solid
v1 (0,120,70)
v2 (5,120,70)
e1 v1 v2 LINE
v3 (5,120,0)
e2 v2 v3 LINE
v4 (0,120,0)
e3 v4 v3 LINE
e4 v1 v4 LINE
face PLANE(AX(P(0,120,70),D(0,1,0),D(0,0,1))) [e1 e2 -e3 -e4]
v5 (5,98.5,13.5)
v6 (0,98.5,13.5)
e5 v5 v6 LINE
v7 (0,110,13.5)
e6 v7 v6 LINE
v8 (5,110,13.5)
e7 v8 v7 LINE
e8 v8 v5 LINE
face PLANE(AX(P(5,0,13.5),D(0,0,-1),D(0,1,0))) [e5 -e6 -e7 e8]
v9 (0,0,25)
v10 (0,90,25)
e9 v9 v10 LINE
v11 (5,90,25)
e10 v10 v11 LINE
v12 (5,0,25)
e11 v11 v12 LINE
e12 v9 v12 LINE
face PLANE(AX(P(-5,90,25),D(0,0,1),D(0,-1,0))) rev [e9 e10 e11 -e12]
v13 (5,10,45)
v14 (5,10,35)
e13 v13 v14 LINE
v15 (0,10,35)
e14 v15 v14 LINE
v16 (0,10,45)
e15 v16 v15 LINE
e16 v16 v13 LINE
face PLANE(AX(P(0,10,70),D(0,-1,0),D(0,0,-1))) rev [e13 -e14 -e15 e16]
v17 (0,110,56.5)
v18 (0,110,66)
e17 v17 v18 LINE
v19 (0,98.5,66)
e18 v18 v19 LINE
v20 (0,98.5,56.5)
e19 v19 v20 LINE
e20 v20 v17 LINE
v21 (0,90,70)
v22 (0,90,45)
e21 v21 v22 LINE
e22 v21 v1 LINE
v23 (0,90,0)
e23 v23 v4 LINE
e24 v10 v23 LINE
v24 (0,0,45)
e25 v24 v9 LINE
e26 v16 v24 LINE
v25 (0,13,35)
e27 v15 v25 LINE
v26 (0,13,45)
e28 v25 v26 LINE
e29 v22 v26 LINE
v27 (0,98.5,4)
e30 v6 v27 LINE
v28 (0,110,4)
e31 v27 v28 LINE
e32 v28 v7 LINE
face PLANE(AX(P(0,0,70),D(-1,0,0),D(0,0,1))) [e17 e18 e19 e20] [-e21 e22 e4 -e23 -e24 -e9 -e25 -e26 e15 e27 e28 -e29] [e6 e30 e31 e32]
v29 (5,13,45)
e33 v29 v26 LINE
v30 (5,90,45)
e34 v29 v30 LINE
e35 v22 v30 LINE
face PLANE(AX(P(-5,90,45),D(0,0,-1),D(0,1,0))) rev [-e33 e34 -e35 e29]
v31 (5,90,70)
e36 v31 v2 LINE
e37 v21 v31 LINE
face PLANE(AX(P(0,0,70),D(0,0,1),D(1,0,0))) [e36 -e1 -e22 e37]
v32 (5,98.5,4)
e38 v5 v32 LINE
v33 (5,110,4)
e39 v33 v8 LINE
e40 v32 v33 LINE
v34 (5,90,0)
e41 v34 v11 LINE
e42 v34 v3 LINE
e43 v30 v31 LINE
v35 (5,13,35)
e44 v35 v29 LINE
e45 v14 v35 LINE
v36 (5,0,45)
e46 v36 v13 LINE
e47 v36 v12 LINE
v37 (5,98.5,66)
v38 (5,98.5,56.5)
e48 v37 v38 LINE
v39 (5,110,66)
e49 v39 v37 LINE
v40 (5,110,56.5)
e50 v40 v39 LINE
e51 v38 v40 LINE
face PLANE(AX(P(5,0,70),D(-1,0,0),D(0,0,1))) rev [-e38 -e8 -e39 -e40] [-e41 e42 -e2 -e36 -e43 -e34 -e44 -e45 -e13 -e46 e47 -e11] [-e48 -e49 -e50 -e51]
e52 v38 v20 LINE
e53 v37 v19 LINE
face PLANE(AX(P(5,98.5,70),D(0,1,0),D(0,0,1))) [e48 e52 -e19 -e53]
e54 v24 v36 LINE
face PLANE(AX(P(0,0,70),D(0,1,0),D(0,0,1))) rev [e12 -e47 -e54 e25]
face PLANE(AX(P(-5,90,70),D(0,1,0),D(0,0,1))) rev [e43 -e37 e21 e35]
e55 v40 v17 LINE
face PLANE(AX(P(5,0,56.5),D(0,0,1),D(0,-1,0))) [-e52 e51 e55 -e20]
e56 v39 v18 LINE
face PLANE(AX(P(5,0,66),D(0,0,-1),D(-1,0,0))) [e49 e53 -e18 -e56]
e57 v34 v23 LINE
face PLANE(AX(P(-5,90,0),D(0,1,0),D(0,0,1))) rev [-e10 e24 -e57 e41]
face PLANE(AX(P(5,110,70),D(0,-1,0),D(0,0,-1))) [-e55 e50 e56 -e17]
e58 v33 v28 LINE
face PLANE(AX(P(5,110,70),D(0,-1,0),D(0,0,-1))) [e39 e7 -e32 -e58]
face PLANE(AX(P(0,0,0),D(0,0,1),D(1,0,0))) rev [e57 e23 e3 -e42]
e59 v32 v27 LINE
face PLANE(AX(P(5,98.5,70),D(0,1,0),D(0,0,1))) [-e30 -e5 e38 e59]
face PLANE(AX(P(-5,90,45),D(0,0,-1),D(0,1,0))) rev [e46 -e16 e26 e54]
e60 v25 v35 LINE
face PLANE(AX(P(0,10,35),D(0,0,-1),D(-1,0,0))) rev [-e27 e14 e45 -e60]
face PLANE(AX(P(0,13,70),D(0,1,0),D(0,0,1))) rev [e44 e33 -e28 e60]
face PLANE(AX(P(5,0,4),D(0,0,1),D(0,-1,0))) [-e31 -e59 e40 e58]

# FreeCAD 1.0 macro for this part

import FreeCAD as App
import Part
import Sketcher

doc = App.newDocument("Part")
params = doc.addObject("Spreadsheet::Sheet", "Params")
for row, (alias, value) in enumerate([
    ("sketch1_width", "5 mm"),
    ("sketch1_height", "120 mm"),
    ("pad1_length", "70 mm"),
    ("sketch2_width", "3 mm"),
    ("sketch2_height", "35 mm"),
    ("sketch3_width", "11.5 mm"),
    ("sketch3_height", "9.5 mm"),
    ("sketch4_width", "90 mm"),
    ("sketch4_height", "25 mm"),
    ("pocket3_length", "10 mm"),
], start=1):
    params.set(f"A{row}", alias)
    params.set(f"B{row}", "=" + value)
    params.setAlias(f"B{row}", alias)

body = doc.addObject("PartDesign::Body", "Body")

sketch1 = body.newObject("Sketcher::SketchObject", "Sketch")
sketch1.AttachmentSupport = (doc.getObject("XY_Plane"), [""])
sketch1.MapMode = "FlatFace"
sketch1.addGeometry(Part.LineSegment(App.Vector(0, 120, 0), App.Vector(0, 0, 0)), False)
sketch1.addGeometry(Part.LineSegment(App.Vector(0, 0, 0), App.Vector(5, 0, 0)), False)
sketch1.addGeometry(Part.LineSegment(App.Vector(5, 0, 0), App.Vector(5, 120, 0)), False)
sketch1.addGeometry(Part.LineSegment(App.Vector(5, 120, 0), App.Vector(0, 120, 0)), False)
sketch1.addConstraint(Sketcher.Constraint("Coincident", 0, 2, 1, 1))
sketch1.addConstraint(Sketcher.Constraint("Coincident", 1, 2, 2, 1))
sketch1.addConstraint(Sketcher.Constraint("Coincident", 2, 2, 3, 1))
sketch1.addConstraint(Sketcher.Constraint("Coincident", 3, 2, 0, 1))
sketch1.addConstraint(Sketcher.Constraint("Vertical", 0))
sketch1.addConstraint(Sketcher.Constraint("Horizontal", 1))
sketch1.addConstraint(Sketcher.Constraint("Vertical", 2))
sketch1.addConstraint(Sketcher.Constraint("Horizontal", 3))
sketch1.addConstraint(Sketcher.Constraint("Coincident", 0, 2, -1, 1))
sketch1.addConstraint(Sketcher.Constraint("DistanceX", 1, 1, 1, 2, 5.0))
sketch1.addConstraint(Sketcher.Constraint("DistanceY", 0, 2, 0, 1, 120.0))
sketch1.setExpression("Constraints[9]", "Params.sketch1_width")
sketch1.setExpression("Constraints[10]", "Params.sketch1_height")
pad1 = body.newObject("PartDesign::Pad", "Pad")
pad1.Profile = sketch1
pad1.setExpression("Length", "Params.pad1_length")

sketch2 = body.newObject("Sketcher::SketchObject", "Sketch001")
sketch2.AttachmentSupport = (doc.getObject("YZ_Plane"), [""])
sketch2.MapMode = "FlatFace"
sketch2.AttachmentOffset = App.Placement(App.Vector(0, 0, 5), App.Rotation())
sketch2.addGeometry(Part.LineSegment(App.Vector(13, 70, 0), App.Vector(10, 70, 0)), False)
sketch2.addGeometry(Part.LineSegment(App.Vector(10, 70, 0), App.Vector(10, 35, 0)), False)
sketch2.addGeometry(Part.LineSegment(App.Vector(10, 35, 0), App.Vector(13, 35, 0)), False)
sketch2.addGeometry(Part.LineSegment(App.Vector(13, 35, 0), App.Vector(13, 70, 0)), False)
sketch2.addConstraint(Sketcher.Constraint("Coincident", 0, 2, 1, 1))
sketch2.addConstraint(Sketcher.Constraint("Coincident", 1, 2, 2, 1))
sketch2.addConstraint(Sketcher.Constraint("Coincident", 2, 2, 3, 1))
sketch2.addConstraint(Sketcher.Constraint("Coincident", 3, 2, 0, 1))
sketch2.addConstraint(Sketcher.Constraint("Horizontal", 0))
sketch2.addConstraint(Sketcher.Constraint("Vertical", 1))
sketch2.addConstraint(Sketcher.Constraint("Horizontal", 2))
sketch2.addConstraint(Sketcher.Constraint("Vertical", 3))
sketch2.addConstraint(Sketcher.Constraint("DistanceX", 0, 2, 0, 1, 3.0))
sketch2.addConstraint(Sketcher.Constraint("DistanceY", 1, 2, 1, 1, 35.0))
sketch2.addConstraint(Sketcher.Constraint("DistanceX", -1, 1, 0, 2, 10.0))
sketch2.addConstraint(Sketcher.Constraint("DistanceY", -1, 1, 0, 2, 70.0))
sketch2.setExpression("Constraints[8]", "Params.sketch2_width")
sketch2.setExpression("Constraints[9]", "Params.sketch2_height")
pocket1 = body.newObject("PartDesign::Pocket", "Pocket")
pocket1.Profile = sketch2
pocket1.Type = "ThroughAll"

sketch3 = body.newObject("Sketcher::SketchObject", "Sketch002")
sketch3.AttachmentSupport = (doc.getObject("YZ_Plane"), [""])
sketch3.MapMode = "FlatFace"
sketch3.addGeometry(Part.LineSegment(App.Vector(110, 13.5, 0), App.Vector(98.5, 13.5, 0)), False)
sketch3.addGeometry(Part.LineSegment(App.Vector(98.5, 13.5, 0), App.Vector(98.5, 4, 0)), False)
sketch3.addGeometry(Part.LineSegment(App.Vector(98.5, 4, 0), App.Vector(110, 4, 0)), False)
sketch3.addGeometry(Part.LineSegment(App.Vector(110, 4, 0), App.Vector(110, 13.5, 0)), False)
sketch3.addGeometry(Part.LineSegment(App.Vector(110, 66, 0), App.Vector(98.5, 66, 0)), False)
sketch3.addGeometry(Part.LineSegment(App.Vector(98.5, 66, 0), App.Vector(98.5, 56.5, 0)), False)
sketch3.addGeometry(Part.LineSegment(App.Vector(98.5, 56.5, 0), App.Vector(110, 56.5, 0)), False)
sketch3.addGeometry(Part.LineSegment(App.Vector(110, 56.5, 0), App.Vector(110, 66, 0)), False)
sketch3.addConstraint(Sketcher.Constraint("Coincident", 0, 2, 1, 1))
sketch3.addConstraint(Sketcher.Constraint("Coincident", 1, 2, 2, 1))
sketch3.addConstraint(Sketcher.Constraint("Coincident", 2, 2, 3, 1))
sketch3.addConstraint(Sketcher.Constraint("Coincident", 3, 2, 0, 1))
sketch3.addConstraint(Sketcher.Constraint("Coincident", 4, 2, 5, 1))
sketch3.addConstraint(Sketcher.Constraint("Coincident", 5, 2, 6, 1))
sketch3.addConstraint(Sketcher.Constraint("Coincident", 6, 2, 7, 1))
sketch3.addConstraint(Sketcher.Constraint("Coincident", 7, 2, 4, 1))
sketch3.addConstraint(Sketcher.Constraint("Horizontal", 0))
sketch3.addConstraint(Sketcher.Constraint("Vertical", 1))
sketch3.addConstraint(Sketcher.Constraint("Horizontal", 2))
sketch3.addConstraint(Sketcher.Constraint("Vertical", 3))
sketch3.addConstraint(Sketcher.Constraint("Horizontal", 4))
sketch3.addConstraint(Sketcher.Constraint("Vertical", 5))
sketch3.addConstraint(Sketcher.Constraint("Horizontal", 6))
sketch3.addConstraint(Sketcher.Constraint("Vertical", 7))
sketch3.addConstraint(Sketcher.Constraint("Vertical", 1, 2, 4, 2))
sketch3.addConstraint(Sketcher.Constraint("Vertical", 3, 2, 6, 2))
sketch3.addConstraint(Sketcher.Constraint("Equal", 3, 5))
sketch3.addConstraint(Sketcher.Constraint("DistanceX", 0, 2, 0, 1, 11.5))
sketch3.addConstraint(Sketcher.Constraint("DistanceY", 1, 2, 1, 1, 9.5))
sketch3.addConstraint(Sketcher.Constraint("DistanceY", -1, 1, 1, 2, 4.0))
sketch3.addConstraint(Sketcher.Constraint("DistanceX", -1, 1, 2, 2, 110.0))
sketch3.addConstraint(Sketcher.Constraint("DistanceY", -1, 1, 4, 2, 66.0))
sketch3.setExpression("Constraints[19]", "Params.sketch3_width")
sketch3.setExpression("Constraints[20]", "Params.sketch3_height")
pocket2 = body.newObject("PartDesign::Pocket", "Pocket001")
pocket2.Profile = sketch3
pocket2.Type = "ThroughAll"
pocket2.Reversed = True

sketch4 = body.newObject("Sketcher::SketchObject", "Sketch003")
sketch4.AttachmentSupport = (doc.getObject("YZ_Plane"), [""])
sketch4.MapMode = "FlatFace"
sketch4.AttachmentOffset = App.Placement(App.Vector(0, 0, 5), App.Rotation())
sketch4.addGeometry(Part.LineSegment(App.Vector(90, 70, 0), App.Vector(0, 70, 0)), False)
sketch4.addGeometry(Part.LineSegment(App.Vector(0, 70, 0), App.Vector(0, 45, 0)), False)
sketch4.addGeometry(Part.LineSegment(App.Vector(0, 45, 0), App.Vector(90, 45, 0)), False)
sketch4.addGeometry(Part.LineSegment(App.Vector(90, 45, 0), App.Vector(90, 70, 0)), False)
sketch4.addGeometry(Part.LineSegment(App.Vector(90, 25, 0), App.Vector(0, 25, 0)), False)
sketch4.addGeometry(Part.LineSegment(App.Vector(0, 25, 0), App.Vector(0, 0, 0)), False)
sketch4.addGeometry(Part.LineSegment(App.Vector(0, 0, 0), App.Vector(90, 0, 0)), False)
sketch4.addGeometry(Part.LineSegment(App.Vector(90, 0, 0), App.Vector(90, 25, 0)), False)
sketch4.addConstraint(Sketcher.Constraint("Coincident", 0, 2, 1, 1))
sketch4.addConstraint(Sketcher.Constraint("Coincident", 1, 2, 2, 1))
sketch4.addConstraint(Sketcher.Constraint("Coincident", 2, 2, 3, 1))
sketch4.addConstraint(Sketcher.Constraint("Coincident", 3, 2, 0, 1))
sketch4.addConstraint(Sketcher.Constraint("Coincident", 4, 2, 5, 1))
sketch4.addConstraint(Sketcher.Constraint("Coincident", 5, 2, 6, 1))
sketch4.addConstraint(Sketcher.Constraint("Coincident", 6, 2, 7, 1))
sketch4.addConstraint(Sketcher.Constraint("Coincident", 7, 2, 4, 1))
sketch4.addConstraint(Sketcher.Constraint("Horizontal", 0))
sketch4.addConstraint(Sketcher.Constraint("Vertical", 1))
sketch4.addConstraint(Sketcher.Constraint("Horizontal", 2))
sketch4.addConstraint(Sketcher.Constraint("Vertical", 3))
sketch4.addConstraint(Sketcher.Constraint("Horizontal", 4))
sketch4.addConstraint(Sketcher.Constraint("Vertical", 5))
sketch4.addConstraint(Sketcher.Constraint("Horizontal", 6))
sketch4.addConstraint(Sketcher.Constraint("Vertical", 7))
sketch4.addConstraint(Sketcher.Constraint("Coincident", 5, 2, -1, 1))
sketch4.addConstraint(Sketcher.Constraint("PointOnObject", 0, 2, -2))
sketch4.addConstraint(Sketcher.Constraint("Vertical", 3, 2, 6, 2))
sketch4.addConstraint(Sketcher.Constraint("Equal", 3, 5))
sketch4.addConstraint(Sketcher.Constraint("DistanceX", 0, 2, 0, 1, 90.0))
sketch4.addConstraint(Sketcher.Constraint("DistanceY", 1, 2, 1, 1, 25.0))
sketch4.addConstraint(Sketcher.Constraint("DistanceY", -1, 1, 0, 2, 70.0))
sketch4.setExpression("Constraints[20]", "Params.sketch4_width")
sketch4.setExpression("Constraints[21]", "Params.sketch4_height")
pocket3 = body.newObject("PartDesign::Pocket", "Pocket002")
pocket3.Profile = sketch4
pocket3.setExpression("Length", "Params.pocket3_length")

doc.recompute()
